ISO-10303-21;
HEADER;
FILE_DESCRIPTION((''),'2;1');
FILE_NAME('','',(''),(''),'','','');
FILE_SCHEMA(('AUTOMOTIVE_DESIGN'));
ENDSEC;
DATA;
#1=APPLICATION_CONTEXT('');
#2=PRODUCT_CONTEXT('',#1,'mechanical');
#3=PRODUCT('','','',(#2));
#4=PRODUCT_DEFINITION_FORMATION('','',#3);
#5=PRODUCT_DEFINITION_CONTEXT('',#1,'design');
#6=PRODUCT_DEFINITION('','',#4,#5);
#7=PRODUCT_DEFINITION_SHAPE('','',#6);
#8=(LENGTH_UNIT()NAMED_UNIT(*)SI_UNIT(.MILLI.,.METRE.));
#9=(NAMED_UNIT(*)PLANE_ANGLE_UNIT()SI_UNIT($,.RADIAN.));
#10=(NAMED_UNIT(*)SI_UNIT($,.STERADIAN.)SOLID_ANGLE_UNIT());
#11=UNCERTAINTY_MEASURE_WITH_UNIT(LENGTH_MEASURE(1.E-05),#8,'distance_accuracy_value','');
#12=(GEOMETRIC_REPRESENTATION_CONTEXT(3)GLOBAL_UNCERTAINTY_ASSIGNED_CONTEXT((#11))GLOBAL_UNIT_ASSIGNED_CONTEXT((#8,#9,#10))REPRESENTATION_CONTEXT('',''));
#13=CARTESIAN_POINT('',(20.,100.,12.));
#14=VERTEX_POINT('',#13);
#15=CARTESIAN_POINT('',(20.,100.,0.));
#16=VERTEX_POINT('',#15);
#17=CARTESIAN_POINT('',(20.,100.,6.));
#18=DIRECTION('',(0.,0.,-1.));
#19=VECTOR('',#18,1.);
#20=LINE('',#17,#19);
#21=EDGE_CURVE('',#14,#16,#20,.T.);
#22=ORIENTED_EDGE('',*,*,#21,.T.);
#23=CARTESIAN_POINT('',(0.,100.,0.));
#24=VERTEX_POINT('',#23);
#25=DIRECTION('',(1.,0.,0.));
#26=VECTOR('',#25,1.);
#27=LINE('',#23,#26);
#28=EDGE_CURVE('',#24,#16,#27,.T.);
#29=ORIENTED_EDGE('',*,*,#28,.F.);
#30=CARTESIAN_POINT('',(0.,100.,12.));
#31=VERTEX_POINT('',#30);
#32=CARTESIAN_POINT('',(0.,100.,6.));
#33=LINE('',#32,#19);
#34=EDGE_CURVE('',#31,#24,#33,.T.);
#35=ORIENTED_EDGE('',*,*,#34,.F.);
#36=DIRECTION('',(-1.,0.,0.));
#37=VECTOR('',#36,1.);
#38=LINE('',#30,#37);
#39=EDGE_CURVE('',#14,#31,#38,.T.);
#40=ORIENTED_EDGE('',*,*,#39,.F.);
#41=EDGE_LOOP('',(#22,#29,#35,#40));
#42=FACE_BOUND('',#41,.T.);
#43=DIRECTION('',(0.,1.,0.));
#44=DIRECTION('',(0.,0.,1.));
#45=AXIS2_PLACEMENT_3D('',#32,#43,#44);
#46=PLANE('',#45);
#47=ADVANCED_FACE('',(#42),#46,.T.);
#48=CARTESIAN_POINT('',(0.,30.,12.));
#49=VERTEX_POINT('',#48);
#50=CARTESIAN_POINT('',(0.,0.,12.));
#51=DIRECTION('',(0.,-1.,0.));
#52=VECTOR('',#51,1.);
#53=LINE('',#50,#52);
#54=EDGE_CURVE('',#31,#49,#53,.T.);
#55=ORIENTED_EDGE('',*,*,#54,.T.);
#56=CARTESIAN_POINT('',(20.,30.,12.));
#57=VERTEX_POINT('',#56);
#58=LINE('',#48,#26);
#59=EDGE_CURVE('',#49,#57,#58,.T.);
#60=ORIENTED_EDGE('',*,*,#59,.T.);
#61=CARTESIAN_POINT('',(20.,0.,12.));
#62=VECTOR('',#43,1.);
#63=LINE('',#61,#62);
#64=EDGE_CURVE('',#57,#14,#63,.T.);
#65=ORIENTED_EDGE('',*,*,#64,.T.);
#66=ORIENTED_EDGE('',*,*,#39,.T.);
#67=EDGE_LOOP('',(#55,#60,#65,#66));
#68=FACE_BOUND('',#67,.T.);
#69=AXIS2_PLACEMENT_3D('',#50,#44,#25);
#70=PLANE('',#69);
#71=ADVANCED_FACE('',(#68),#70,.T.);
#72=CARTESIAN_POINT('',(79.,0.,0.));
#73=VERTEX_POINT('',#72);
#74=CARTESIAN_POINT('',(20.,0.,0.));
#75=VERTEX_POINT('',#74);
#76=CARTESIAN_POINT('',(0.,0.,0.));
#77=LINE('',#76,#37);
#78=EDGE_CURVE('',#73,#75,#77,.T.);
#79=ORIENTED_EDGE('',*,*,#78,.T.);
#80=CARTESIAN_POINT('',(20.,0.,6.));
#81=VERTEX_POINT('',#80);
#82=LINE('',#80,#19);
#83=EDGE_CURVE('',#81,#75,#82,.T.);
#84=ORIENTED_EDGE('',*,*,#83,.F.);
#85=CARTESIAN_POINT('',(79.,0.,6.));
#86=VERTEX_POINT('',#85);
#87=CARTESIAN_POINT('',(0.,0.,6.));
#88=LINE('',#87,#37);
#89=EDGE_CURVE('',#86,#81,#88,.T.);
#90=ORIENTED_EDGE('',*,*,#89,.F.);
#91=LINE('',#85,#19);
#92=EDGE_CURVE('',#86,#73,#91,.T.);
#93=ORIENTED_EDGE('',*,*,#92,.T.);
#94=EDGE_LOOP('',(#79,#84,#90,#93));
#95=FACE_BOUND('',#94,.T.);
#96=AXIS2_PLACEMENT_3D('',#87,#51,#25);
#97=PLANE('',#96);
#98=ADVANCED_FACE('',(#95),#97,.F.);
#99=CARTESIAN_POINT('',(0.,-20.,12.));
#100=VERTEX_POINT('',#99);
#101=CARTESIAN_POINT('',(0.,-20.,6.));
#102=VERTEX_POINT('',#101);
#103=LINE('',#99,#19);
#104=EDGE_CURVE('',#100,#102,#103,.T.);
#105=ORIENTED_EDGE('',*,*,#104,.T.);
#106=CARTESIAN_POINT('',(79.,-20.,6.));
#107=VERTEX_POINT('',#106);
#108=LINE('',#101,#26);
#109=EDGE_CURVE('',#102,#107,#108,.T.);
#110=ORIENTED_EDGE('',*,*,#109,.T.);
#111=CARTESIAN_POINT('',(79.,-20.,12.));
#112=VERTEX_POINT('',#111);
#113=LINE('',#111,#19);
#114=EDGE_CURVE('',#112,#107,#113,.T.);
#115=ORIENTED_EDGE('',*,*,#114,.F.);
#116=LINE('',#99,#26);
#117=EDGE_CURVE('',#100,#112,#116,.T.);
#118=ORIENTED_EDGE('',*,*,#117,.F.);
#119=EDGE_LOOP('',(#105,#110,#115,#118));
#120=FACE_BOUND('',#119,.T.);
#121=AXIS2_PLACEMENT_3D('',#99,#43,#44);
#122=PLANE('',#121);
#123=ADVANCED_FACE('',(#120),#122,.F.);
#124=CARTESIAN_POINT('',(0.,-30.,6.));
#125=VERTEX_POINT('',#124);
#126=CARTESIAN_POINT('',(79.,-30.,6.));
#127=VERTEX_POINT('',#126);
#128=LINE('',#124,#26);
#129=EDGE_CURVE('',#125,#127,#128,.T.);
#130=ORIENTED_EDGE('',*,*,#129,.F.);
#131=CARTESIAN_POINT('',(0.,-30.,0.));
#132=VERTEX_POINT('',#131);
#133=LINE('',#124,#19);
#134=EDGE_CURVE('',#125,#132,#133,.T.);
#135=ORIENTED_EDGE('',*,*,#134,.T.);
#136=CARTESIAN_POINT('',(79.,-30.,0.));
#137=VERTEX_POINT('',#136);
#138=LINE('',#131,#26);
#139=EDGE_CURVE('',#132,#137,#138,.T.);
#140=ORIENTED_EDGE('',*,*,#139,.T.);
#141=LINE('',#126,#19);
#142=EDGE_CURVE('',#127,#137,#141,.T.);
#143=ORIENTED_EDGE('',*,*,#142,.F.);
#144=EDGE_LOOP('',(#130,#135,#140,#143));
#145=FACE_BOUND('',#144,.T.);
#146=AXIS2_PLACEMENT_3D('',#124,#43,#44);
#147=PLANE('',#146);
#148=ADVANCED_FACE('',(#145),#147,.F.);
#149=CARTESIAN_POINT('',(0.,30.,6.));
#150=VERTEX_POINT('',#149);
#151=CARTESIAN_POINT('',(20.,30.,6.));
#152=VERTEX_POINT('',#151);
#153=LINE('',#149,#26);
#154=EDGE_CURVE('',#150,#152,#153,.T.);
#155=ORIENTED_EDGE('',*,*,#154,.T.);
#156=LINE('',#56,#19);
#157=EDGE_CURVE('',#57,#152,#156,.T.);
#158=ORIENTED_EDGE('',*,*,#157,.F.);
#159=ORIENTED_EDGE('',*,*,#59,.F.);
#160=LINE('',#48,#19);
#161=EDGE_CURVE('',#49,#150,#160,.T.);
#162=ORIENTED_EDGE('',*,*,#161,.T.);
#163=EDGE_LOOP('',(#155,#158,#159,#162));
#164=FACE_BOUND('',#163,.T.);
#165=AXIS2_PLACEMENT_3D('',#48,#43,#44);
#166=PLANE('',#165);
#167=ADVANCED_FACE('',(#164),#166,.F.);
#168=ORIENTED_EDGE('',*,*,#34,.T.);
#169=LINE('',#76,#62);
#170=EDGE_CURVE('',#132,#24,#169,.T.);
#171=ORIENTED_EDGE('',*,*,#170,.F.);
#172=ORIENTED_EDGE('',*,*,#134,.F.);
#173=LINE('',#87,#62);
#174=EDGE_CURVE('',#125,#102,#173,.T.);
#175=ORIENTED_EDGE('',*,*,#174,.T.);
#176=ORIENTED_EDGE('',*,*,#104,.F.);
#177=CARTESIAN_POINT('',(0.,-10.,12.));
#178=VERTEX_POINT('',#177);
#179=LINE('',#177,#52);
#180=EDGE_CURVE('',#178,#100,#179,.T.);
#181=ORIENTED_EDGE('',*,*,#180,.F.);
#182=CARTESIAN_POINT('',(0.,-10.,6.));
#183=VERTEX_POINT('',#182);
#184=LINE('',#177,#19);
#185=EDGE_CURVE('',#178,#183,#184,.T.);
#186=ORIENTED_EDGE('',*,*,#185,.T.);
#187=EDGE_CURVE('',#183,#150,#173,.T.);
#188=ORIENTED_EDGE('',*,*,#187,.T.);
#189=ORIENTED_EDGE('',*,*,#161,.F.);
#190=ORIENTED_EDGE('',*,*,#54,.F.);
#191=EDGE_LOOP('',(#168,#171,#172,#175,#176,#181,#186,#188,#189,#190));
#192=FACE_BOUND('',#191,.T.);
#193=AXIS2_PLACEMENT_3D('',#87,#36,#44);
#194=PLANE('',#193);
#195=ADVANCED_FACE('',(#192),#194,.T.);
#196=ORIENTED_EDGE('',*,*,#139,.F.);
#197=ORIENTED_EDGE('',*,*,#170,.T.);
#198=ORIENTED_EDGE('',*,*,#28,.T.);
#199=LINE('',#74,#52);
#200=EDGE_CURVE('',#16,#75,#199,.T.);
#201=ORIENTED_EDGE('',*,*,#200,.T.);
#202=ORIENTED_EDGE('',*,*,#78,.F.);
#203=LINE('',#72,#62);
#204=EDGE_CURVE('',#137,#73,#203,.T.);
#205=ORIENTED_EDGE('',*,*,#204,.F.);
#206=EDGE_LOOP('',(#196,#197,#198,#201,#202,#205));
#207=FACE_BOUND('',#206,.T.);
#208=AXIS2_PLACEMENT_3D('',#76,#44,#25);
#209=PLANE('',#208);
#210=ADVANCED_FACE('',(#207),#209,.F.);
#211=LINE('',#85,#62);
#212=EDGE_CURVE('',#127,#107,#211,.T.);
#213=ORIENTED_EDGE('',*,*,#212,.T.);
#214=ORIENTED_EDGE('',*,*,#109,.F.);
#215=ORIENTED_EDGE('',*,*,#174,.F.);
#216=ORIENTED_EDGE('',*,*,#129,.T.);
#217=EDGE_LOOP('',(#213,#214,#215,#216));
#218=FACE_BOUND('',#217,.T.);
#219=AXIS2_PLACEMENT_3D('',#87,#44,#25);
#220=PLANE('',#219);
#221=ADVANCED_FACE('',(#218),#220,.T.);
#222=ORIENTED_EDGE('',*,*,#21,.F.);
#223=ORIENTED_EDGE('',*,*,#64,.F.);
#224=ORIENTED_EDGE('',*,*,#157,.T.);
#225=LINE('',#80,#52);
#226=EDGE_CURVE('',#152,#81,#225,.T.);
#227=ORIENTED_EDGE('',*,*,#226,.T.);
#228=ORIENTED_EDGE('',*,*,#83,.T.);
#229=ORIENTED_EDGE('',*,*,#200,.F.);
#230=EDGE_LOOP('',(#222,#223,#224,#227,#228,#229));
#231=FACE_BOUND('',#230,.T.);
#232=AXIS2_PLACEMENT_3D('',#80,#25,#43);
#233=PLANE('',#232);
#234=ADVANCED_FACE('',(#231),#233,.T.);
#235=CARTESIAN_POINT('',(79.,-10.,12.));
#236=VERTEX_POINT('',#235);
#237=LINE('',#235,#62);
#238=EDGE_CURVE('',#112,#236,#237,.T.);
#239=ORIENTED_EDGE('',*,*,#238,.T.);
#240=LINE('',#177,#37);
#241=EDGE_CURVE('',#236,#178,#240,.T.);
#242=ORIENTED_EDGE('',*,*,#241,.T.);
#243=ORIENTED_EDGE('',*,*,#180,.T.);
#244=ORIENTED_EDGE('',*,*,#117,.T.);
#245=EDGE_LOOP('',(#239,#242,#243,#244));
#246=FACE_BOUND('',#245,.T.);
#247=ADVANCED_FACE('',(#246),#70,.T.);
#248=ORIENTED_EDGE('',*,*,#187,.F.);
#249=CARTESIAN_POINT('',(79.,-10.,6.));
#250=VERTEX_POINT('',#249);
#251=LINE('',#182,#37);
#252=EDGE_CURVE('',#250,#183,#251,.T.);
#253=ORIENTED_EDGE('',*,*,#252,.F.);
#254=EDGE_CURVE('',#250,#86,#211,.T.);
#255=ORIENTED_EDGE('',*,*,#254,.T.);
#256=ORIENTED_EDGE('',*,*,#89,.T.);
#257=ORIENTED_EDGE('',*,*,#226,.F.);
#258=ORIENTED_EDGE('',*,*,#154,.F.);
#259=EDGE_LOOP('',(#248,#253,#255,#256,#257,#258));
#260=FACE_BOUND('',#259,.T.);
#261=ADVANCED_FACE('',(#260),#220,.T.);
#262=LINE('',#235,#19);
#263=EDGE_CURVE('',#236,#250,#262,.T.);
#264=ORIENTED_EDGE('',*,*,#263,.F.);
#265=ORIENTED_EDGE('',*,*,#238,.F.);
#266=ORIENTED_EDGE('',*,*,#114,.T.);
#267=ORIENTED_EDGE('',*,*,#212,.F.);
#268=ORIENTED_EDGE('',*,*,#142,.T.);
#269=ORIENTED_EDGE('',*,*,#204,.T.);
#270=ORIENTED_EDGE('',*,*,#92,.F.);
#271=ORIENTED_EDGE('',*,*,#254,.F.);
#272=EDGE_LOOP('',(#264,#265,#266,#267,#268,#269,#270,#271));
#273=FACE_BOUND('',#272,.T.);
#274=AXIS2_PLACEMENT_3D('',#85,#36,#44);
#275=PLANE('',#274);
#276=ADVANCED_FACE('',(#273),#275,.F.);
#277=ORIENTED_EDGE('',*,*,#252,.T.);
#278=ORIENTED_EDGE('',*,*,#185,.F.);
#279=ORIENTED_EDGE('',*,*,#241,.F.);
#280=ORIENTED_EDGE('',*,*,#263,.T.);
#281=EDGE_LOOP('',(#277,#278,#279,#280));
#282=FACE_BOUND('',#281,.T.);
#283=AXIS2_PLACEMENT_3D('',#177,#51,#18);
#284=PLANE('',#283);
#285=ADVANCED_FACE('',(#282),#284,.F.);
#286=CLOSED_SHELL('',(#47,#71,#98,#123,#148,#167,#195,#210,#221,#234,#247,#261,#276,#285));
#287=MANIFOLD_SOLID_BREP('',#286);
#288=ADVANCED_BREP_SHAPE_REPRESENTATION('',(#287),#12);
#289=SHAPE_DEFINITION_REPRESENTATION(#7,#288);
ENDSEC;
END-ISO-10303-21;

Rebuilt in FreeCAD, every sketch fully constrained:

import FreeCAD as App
import Part
import Sketcher
from FreeCAD import Vector


def add_polygon(sketch, points):
    """Adds a closed chain of lines whose ends are joined by coincident constraints."""
    first, n = sketch.GeometryCount, len(points)
    for a, b in zip(points, points[1:] + points[:1]):
        sketch.addGeometry(Part.LineSegment(App.Vector(*a, 0), App.Vector(*b, 0)), False)
    for i in range(n):
        sketch.addConstraint(Sketcher.Constraint("Coincident", first + i, 2, first + (i + 1) % n, 1))

doc = App.newDocument("Part")
params = doc.addObject("Spreadsheet::Sheet", "Params")
for row, (alias, value) in enumerate([
    ("sketch1_width", "20 mm"),
    ("sketch1_height", "100 mm"),
    ("pad1_length", "6 mm"),
    ("sketch2_width", "79 mm"),
    ("sketch2_height", "30 mm"),
    ("pad2_length", "6 mm"),
    ("sketch3_width", "79 mm"),
    ("sketch3_height", "10 mm"),
    ("pad3_length", "6 mm"),
    ("sketch4_width", "20 mm"),
    ("sketch4_height", "70 mm"),
    ("pad4_length", "6 mm"),
], start=1):
    params.set(f"A{row}", alias)
    params.set(f"B{row}", "=" + value)
    params.setAlias(f"B{row}", alias)

body = doc.addObject("PartDesign::Body", "Body")

# Sketch on XY plane
sketch1 = body.newObject("Sketcher::SketchObject", "Sketch")
sketch1.AttachmentSupport = (doc.getObject("XY_Plane"), [""])
sketch1.MapMode = "FlatFace"
add_polygon(sketch1, [(0, 100), (0, 0), (20, 0), (20, 100)])  # lines 0-3
sketch1.addConstraint(Sketcher.Constraint("Vertical", 0))
sketch1.addConstraint(Sketcher.Constraint("Horizontal", 1))
sketch1.addConstraint(Sketcher.Constraint("Vertical", 2))
sketch1.addConstraint(Sketcher.Constraint("Horizontal", 3))
sketch1.addConstraint(Sketcher.Constraint("Coincident", 0, 2, -1, 1))
sketch1.addConstraint(Sketcher.Constraint("DistanceX", 1, 1, 1, 2, 20.0))
sketch1.addConstraint(Sketcher.Constraint("DistanceY", 0, 2, 0, 1, 100.0))
sketch1.setExpression("Constraints[9]", "Params.sketch1_width")
sketch1.setExpression("Constraints[10]", "Params.sketch1_height")
pad1 = body.newObject("PartDesign::Pad", "Pad")
pad1.Profile = sketch1
pad1.setExpression("Length", "Params.pad1_length")

# Sketch on XY plane
sketch2 = body.newObject("Sketcher::SketchObject", "Sketch001")
sketch2.AttachmentSupport = (doc.getObject("XY_Plane"), [""])
sketch2.MapMode = "FlatFace"
add_polygon(sketch2, [(0, 0), (0, -30), (79, -30), (79, 0)])  # lines 0-3
sketch2.addConstraint(Sketcher.Constraint("Vertical", 0))
sketch2.addConstraint(Sketcher.Constraint("Horizontal", 1))
sketch2.addConstraint(Sketcher.Constraint("Vertical", 2))
sketch2.addConstraint(Sketcher.Constraint("Horizontal", 3))
sketch2.addConstraint(Sketcher.Constraint("Coincident", 3, 2, -1, 1))
sketch2.addConstraint(Sketcher.Constraint("DistanceX", 1, 1, 1, 2, 79.0))
sketch2.addConstraint(Sketcher.Constraint("DistanceY", 0, 2, 0, 1, 30.0))
sketch2.setExpression("Constraints[9]", "Params.sketch2_width")
sketch2.setExpression("Constraints[10]", "Params.sketch2_height")
pad2 = body.newObject("PartDesign::Pad", "Pad001")
pad2.Profile = sketch2
pad2.setExpression("Length", "Params.pad2_length")

# Sketch on XY plane
sketch3 = body.newObject("Sketcher::SketchObject", "Sketch002")
sketch3.AttachmentSupport = (doc.getObject("XY_Plane"), [""])
sketch3.MapMode = "FlatFace"
sketch3.AttachmentOffset = App.Placement(Vector(0, 0, 6), App.Rotation())
add_polygon(sketch3, [(0, -10), (0, -20), (79, -20), (79, -10)])  # lines 0-3
sketch3.addConstraint(Sketcher.Constraint("Vertical", 0))
sketch3.addConstraint(Sketcher.Constraint("Horizontal", 1))
sketch3.addConstraint(Sketcher.Constraint("Vertical", 2))
sketch3.addConstraint(Sketcher.Constraint("Horizontal", 3))
sketch3.addConstraint(Sketcher.Constraint("PointOnObject", 0, 2, -2))
sketch3.addConstraint(Sketcher.Constraint("DistanceX", 1, 1, 1, 2, 79.0))
sketch3.addConstraint(Sketcher.Constraint("DistanceY", 0, 2, 0, 1, 10.0))
sketch3.addConstraint(Sketcher.Constraint("DistanceY", 0, 2, -1, 1, 20.0))
sketch3.setExpression("Constraints[9]", "Params.sketch3_width")
sketch3.setExpression("Constraints[10]", "Params.sketch3_height")
pad3 = body.newObject("PartDesign::Pad", "Pad002")
pad3.Profile = sketch3
pad3.setExpression("Length", "Params.pad3_length")

# Sketch on XY plane
sketch4 = body.newObject("Sketcher::SketchObject", "Sketch003")
sketch4.AttachmentSupport = (doc.getObject("XY_Plane"), [""])
sketch4.MapMode = "FlatFace"
sketch4.AttachmentOffset = App.Placement(Vector(0, 0, 6), App.Rotation())
add_polygon(sketch4, [(0, 100), (0, 30), (20, 30), (20, 100)])  # lines 0-3
sketch4.addConstraint(Sketcher.Constraint("Vertical", 0))
sketch4.addConstraint(Sketcher.Constraint("Horizontal", 1))
sketch4.addConstraint(Sketcher.Constraint("Vertical", 2))
sketch4.addConstraint(Sketcher.Constraint("Horizontal", 3))
sketch4.addConstraint(Sketcher.Constraint("PointOnObject", 0, 2, -2))
sketch4.addConstraint(Sketcher.Constraint("DistanceX", 1, 1, 1, 2, 20.0))
sketch4.addConstraint(Sketcher.Constraint("DistanceY", 0, 2, 0, 1, 70.0))
sketch4.addConstraint(Sketcher.Constraint("DistanceY", -1, 1, 0, 2, 30.0))
sketch4.setExpression("Constraints[9]", "Params.sketch4_width")
sketch4.setExpression("Constraints[10]", "Params.sketch4_height")
pad4 = body.newObject("PartDesign::Pad", "Pad003")
pad4.Profile = sketch4
pad4.setExpression("Length", "Params.pad4_length")

doc.recompute()
